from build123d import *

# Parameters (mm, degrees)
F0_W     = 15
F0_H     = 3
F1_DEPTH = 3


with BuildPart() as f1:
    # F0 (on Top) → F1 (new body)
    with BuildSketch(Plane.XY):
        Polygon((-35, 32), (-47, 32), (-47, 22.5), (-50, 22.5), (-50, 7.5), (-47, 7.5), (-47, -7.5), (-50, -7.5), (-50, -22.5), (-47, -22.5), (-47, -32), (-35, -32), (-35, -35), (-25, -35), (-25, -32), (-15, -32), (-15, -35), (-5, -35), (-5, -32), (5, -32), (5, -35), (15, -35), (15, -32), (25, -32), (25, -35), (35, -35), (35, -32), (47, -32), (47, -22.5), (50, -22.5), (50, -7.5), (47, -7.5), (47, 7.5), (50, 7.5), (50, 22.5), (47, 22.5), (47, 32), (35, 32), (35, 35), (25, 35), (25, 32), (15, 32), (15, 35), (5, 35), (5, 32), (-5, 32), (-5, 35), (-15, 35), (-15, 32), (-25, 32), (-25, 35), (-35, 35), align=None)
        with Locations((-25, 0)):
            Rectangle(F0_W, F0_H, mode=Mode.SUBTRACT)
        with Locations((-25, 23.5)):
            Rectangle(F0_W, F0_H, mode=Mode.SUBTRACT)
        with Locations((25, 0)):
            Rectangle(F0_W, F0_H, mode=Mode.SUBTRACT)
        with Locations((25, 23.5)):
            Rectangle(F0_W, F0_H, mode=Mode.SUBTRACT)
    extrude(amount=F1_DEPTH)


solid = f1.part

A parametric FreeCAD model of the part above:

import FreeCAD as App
import Part
import Sketcher
Q = App.Units.Quantity


def add_polygon(sketch, points):
    """Adds a closed chain of lines whose ends are joined by coincident constraints."""
    first, n = sketch.GeometryCount, len(points)
    for a, b in zip(points, points[1:] + points[:1]):
        sketch.addGeometry(Part.LineSegment(App.Vector(*a, 0), App.Vector(*b, 0)), False)
    for i in range(n):
        sketch.addConstraint(Sketcher.Constraint("Coincident", first + i, 2, first + (i + 1) % n, 1))

doc = App.newDocument("Part")
params = doc.addObject("Spreadsheet::Sheet", "Params")
for row, (alias, value) in enumerate([
    ("sketch1_width", "12 mm"),
    ("sketch1_width2", "3 mm"),
    ("sketch1_width3", "10 mm"),
    ("sketch1_width4", "15 mm"),
    ("sketch1_height", "9.5 mm"),
    ("pad1_length", "3 mm"),
], start=1):
    params.set(f"A{row}", alias)
    params.set(f"B{row}", "=" + value)
    params.setAlias(f"B{row}", alias)

body = doc.addObject("PartDesign::Body", "Body")

sketch1 = doc.addObject("Sketcher::SketchObject", "Sketch")
body.addObject(sketch1)
sketch1.AttachmentSupport = (doc.XY_Plane, [""])
sketch1.MapMode = "FlatFace"
add_polygon(sketch1, [(-35, 32), (-47, 32), (-47, 22.5), (-50, 22.5), (-50, 7.5), (-47, 7.5), (-47, -7.5), (-50, -7.5), (-50, -22.5), (-47, -22.5), (-47, -32), (-35, -32), (-35, -35), (-25, -35), (-25, -32), (-15, -32), (-15, -35), (-5, -35), (-5, -32), (5, -32), (5, -35), (15, -35), (15, -32), (25, -32), (25, -35), (35, -35), (35, -32), (47, -32), (47, -22.5), (50, -22.5), (50, -7.5), (47, -7.5), (47, 7.5), (50, 7.5), (50, 22.5), (47, 22.5), (47, 32), (35, 32), (35, 35), (25, 35), (25, 32), (15, 32), (15, 35), (5, 35), (5, 32), (-5, 32), (-5, 35), (-15, 35), (-15, 32), (-25, 32), (-25, 35), (-35, 35)])
add_polygon(sketch1, [(-17.5, -1.5), (-32.5, -1.5), (-32.5, 1.5), (-17.5, 1.5)])
add_polygon(sketch1, [(32.5, -1.5), (17.5, -1.5), (17.5, 1.5), (32.5, 1.5)])
add_polygon(sketch1, [(-17.5, 22), (-32.5, 22), (-32.5, 25), (-17.5, 25)])
add_polygon(sketch1, [(32.5, 22), (17.5, 22), (17.5, 25), (32.5, 25)])
sketch1.addConstraint(Sketcher.Constraint("Horizontal", 0))
sketch1.addConstraint(Sketcher.Constraint("Vertical", 1))
sketch1.addConstraint(Sketcher.Constraint("Horizontal", 2))
sketch1.addConstraint(Sketcher.Constraint("Vertical", 3))
sketch1.addConstraint(Sketcher.Constraint("Horizontal", 4))
sketch1.addConstraint(Sketcher.Constraint("Vertical", 5))
sketch1.addConstraint(Sketcher.Constraint("Horizontal", 6))
sketch1.addConstraint(Sketcher.Constraint("Vertical", 7))
sketch1.addConstraint(Sketcher.Constraint("Horizontal", 8))
sketch1.addConstraint(Sketcher.Constraint("Vertical", 9))
sketch1.addConstraint(Sketcher.Constraint("Horizontal", 10))
sketch1.addConstraint(Sketcher.Constraint("Vertical", 11))
sketch1.addConstraint(Sketcher.Constraint("Horizontal", 12))
sketch1.addConstraint(Sketcher.Constraint("Vertical", 13))
sketch1.addConstraint(Sketcher.Constraint("Horizontal", 14))
sketch1.addConstraint(Sketcher.Constraint("Vertical", 15))
sketch1.addConstraint(Sketcher.Constraint("Horizontal", 16))
sketch1.addConstraint(Sketcher.Constraint("Vertical", 17))
sketch1.addConstraint(Sketcher.Constraint("Horizontal", 18))
sketch1.addConstraint(Sketcher.Constraint("Vertical", 19))
sketch1.addConstraint(Sketcher.Constraint("Horizontal", 20))
sketch1.addConstraint(Sketcher.Constraint("Vertical", 21))
sketch1.addConstraint(Sketcher.Constraint("Horizontal", 22))
sketch1.addConstraint(Sketcher.Constraint("Vertical", 23))
sketch1.addConstraint(Sketcher.Constraint("Horizontal", 24))
sketch1.addConstraint(Sketcher.Constraint("Vertical", 25))
sketch1.addConstraint(Sketcher.Constraint("Horizontal", 26))
sketch1.addConstraint(Sketcher.Constraint("Vertical", 27))
sketch1.addConstraint(Sketcher.Constraint("Horizontal", 28))
sketch1.addConstraint(Sketcher.Constraint("Vertical", 29))
sketch1.addConstraint(Sketcher.Constraint("Horizontal", 30))
sketch1.addConstraint(Sketcher.Constraint("Vertical", 31))
sketch1.addConstraint(Sketcher.Constraint("Horizontal", 32))
sketch1.addConstraint(Sketcher.Constraint("Vertical", 33))
sketch1.addConstraint(Sketcher.Constraint("Horizontal", 34))
sketch1.addConstraint(Sketcher.Constraint("Vertical", 35))
sketch1.addConstraint(Sketcher.Constraint("Horizontal", 36))
sketch1.addConstraint(Sketcher.Constraint("Vertical", 37))
sketch1.addConstraint(Sketcher.Constraint("Horizontal", 38))
sketch1.addConstraint(Sketcher.Constraint("Vertical", 39))
sketch1.addConstraint(Sketcher.Constraint("Horizontal", 40))
sketch1.addConstraint(Sketcher.Constraint("Vertical", 41))
sketch1.addConstraint(Sketcher.Constraint("Horizontal", 42))
sketch1.addConstraint(Sketcher.Constraint("Vertical", 43))
sketch1.addConstraint(Sketcher.Constraint("Horizontal", 44))
sketch1.addConstraint(Sketcher.Constraint("Vertical", 45))
sketch1.addConstraint(Sketcher.Constraint("Horizontal", 46))
sketch1.addConstraint(Sketcher.Constraint("Vertical", 47))
sketch1.addConstraint(Sketcher.Constraint("Horizontal", 48))
sketch1.addConstraint(Sketcher.Constraint("Vertical", 49))
sketch1.addConstraint(Sketcher.Constraint("Horizontal", 50))
sketch1.addConstraint(Sketcher.Constraint("Vertical", 51))
sketch1.addConstraint(Sketcher.Constraint("Horizontal", 52))
sketch1.addConstraint(Sketcher.Constraint("Vertical", 53))
sketch1.addConstraint(Sketcher.Constraint("Horizontal", 54))
sketch1.addConstraint(Sketcher.Constraint("Vertical", 55))
sketch1.addConstraint(Sketcher.Constraint("Horizontal", 56))
sketch1.addConstraint(Sketcher.Constraint("Vertical", 57))
sketch1.addConstraint(Sketcher.Constraint("Horizontal", 58))
sketch1.addConstraint(Sketcher.Constraint("Vertical", 59))
sketch1.addConstraint(Sketcher.Constraint("Horizontal", 60))
sketch1.addConstraint(Sketcher.Constraint("Vertical", 61))
sketch1.addConstraint(Sketcher.Constraint("Horizontal", 62))
sketch1.addConstraint(Sketcher.Constraint("Vertical", 63))
sketch1.addConstraint(Sketcher.Constraint("Horizontal", 64))
sketch1.addConstraint(Sketcher.Constraint("Vertical", 65))
sketch1.addConstraint(Sketcher.Constraint("Horizontal", 66))
sketch1.addConstraint(Sketcher.Constraint("Vertical", 67))
sketch1.addConstraint(Sketcher.Constraint("Symmetric", 0, 2, 26, 2, -1, 1))
sketch1.addConstraint(Sketcher.Constraint("Symmetric", 2, 2, 28, 2, -1, 1))
sketch1.addConstraint(Sketcher.Constraint("Symmetric", 4, 2, 30, 2, -1, 1))
sketch1.addConstraint(Sketcher.Constraint("Symmetric", 6, 2, 32, 2, -1, 1))
sketch1.addConstraint(Sketcher.Constraint("Symmetric", 8, 2, 34, 2, -1, 1))
sketch1.addConstraint(Sketcher.Constraint("Symmetric", 10, 2, 36, 2, -1, 1))
sketch1.addConstraint(Sketcher.Constraint("Symmetric", 12, 2, 38, 2, -1, 1))
sketch1.addConstraint(Sketcher.Constraint("Symmetric", 14, 2, 40, 2, -1, 1))
sketch1.addConstraint(Sketcher.Constraint("Symmetric", 16, 2, 42, 2, -1, 1))
sketch1.addConstraint(Sketcher.Constraint("Symmetric", 18, 2, 44, 2, -1, 1))
sketch1.addConstraint(Sketcher.Constraint("Symmetric", 20, 2, 46, 2, -1, 1))
sketch1.addConstraint(Sketcher.Constraint("Symmetric", 22, 2, 48, 2, -1, 1))
sketch1.addConstraint(Sketcher.Constraint("Symmetric", 24, 2, 50, 2, -1, 1))
sketch1.addConstraint(Sketcher.Constraint("Symmetric", 54, 2, 56, 2, -1, 1))
sketch1.addConstraint(Sketcher.Constraint("Symmetric", 52, 2, 58, 2, -1, 1))
sketch1.addConstraint(Sketcher.Constraint("Symmetric", 16, 2, 19, 2, -2))
sketch1.addConstraint(Sketcher.Constraint("Symmetric", 14, 2, 21, 2, -2))
sketch1.addConstraint(Sketcher.Constraint("Symmetric", 12, 2, 23, 2, -2))
sketch1.addConstraint(Sketcher.Constraint("Symmetric", 10, 2, 25, 2, -2))
sketch1.addConstraint(Sketcher.Constraint("Symmetric", 8, 2, 27, 2, -2))
sketch1.addConstraint(Sketcher.Constraint("Symmetric", 6, 2, 29, 2, -2))
sketch1.addConstraint(Sketcher.Constraint("Symmetric", 63, 2, 64, 2, -2))
sketch1.addConstraint(Sketcher.Constraint("Symmetric", 61, 2, 66, 2, -2))
sketch1.addConstraint(Sketcher.Constraint("Horizontal", 10, 2, 13, 2))
sketch1.addConstraint(Sketcher.Constraint("Horizontal", 12, 2, 15, 2))
sketch1.addConstraint(Sketcher.Constraint("Horizontal", 14, 2, 17, 2))
sketch1.addConstraint(Sketcher.Constraint("Horizontal", 55, 2, 56, 2))
sketch1.addConstraint(Sketcher.Constraint("Vertical", 1, 2, 4, 2))
sketch1.addConstraint(Sketcher.Constraint("Vertical", 53, 2, 60, 2))
sketch1.addConstraint(Sketcher.Constraint("Vertical", 55, 2, 62, 2))
sketch1.addConstraint(Sketcher.Constraint("Equal", 12, 14))
sketch1.addConstraint(Sketcher.Constraint("Equal", 14, 16))
sketch1.addConstraint(Sketcher.Constraint("Equal", 16, 18))
sketch1.addConstraint(Sketcher.Constraint("Equal", 66, 3))
sketch1.addConstraint(Sketcher.Constraint("Equal", 3, 5))
sketch1.addConstraint(Sketcher.Constraint("Equal", 34, 11))
sketch1.addConstraint(Sketcher.Constraint("Equal", 51, 53))
sketch1.addConstraint(Sketcher.Constraint("Equal", 59, 61))
sketch1.addConstraint(Sketcher.Constraint("DistanceX", 0, 2, 0, 1, Q("12 mm")))
sketch1.addConstraint(Sketcher.Constraint("DistanceX", 2, 2, 2, 1, Q("3 mm")))
sketch1.addConstraint(Sketcher.Constraint("DistanceX", 12, 1, 12, 2, Q("10 mm")))
sketch1.addConstraint(Sketcher.Constraint("DistanceX", 52, 2, 52, 1, Q("15 mm")))
sketch1.addConstraint(Sketcher.Constraint("DistanceY", 1, 2, 1, 1, Q("9.5 mm")))
sketch1.addConstraint(Sketcher.Constraint("DistanceY", -1, 1, 60, 2, Q("22 mm")))
sketch1.addConstraint(Sketcher.Constraint("DistanceX", 52, 2, -1, 1, Q("32.5 mm")))
sketch1.setExpression("Constraints[174]", "Params.sketch1_width")
sketch1.setExpression("Constraints[175]", "Params.sketch1_width2")
sketch1.setExpression("Constraints[176]", "Params.sketch1_width3")
sketch1.setExpression("Constraints[177]", "Params.sketch1_width4")
sketch1.setExpression("Constraints[178]", "Params.sketch1_height")
pad1 = doc.addObject("PartDesign::Pad", "Pad")
body.addObject(pad1)
pad1.Profile = sketch1
pad1.setExpression("Length", "Params.pad1_length")

doc.recompute()
